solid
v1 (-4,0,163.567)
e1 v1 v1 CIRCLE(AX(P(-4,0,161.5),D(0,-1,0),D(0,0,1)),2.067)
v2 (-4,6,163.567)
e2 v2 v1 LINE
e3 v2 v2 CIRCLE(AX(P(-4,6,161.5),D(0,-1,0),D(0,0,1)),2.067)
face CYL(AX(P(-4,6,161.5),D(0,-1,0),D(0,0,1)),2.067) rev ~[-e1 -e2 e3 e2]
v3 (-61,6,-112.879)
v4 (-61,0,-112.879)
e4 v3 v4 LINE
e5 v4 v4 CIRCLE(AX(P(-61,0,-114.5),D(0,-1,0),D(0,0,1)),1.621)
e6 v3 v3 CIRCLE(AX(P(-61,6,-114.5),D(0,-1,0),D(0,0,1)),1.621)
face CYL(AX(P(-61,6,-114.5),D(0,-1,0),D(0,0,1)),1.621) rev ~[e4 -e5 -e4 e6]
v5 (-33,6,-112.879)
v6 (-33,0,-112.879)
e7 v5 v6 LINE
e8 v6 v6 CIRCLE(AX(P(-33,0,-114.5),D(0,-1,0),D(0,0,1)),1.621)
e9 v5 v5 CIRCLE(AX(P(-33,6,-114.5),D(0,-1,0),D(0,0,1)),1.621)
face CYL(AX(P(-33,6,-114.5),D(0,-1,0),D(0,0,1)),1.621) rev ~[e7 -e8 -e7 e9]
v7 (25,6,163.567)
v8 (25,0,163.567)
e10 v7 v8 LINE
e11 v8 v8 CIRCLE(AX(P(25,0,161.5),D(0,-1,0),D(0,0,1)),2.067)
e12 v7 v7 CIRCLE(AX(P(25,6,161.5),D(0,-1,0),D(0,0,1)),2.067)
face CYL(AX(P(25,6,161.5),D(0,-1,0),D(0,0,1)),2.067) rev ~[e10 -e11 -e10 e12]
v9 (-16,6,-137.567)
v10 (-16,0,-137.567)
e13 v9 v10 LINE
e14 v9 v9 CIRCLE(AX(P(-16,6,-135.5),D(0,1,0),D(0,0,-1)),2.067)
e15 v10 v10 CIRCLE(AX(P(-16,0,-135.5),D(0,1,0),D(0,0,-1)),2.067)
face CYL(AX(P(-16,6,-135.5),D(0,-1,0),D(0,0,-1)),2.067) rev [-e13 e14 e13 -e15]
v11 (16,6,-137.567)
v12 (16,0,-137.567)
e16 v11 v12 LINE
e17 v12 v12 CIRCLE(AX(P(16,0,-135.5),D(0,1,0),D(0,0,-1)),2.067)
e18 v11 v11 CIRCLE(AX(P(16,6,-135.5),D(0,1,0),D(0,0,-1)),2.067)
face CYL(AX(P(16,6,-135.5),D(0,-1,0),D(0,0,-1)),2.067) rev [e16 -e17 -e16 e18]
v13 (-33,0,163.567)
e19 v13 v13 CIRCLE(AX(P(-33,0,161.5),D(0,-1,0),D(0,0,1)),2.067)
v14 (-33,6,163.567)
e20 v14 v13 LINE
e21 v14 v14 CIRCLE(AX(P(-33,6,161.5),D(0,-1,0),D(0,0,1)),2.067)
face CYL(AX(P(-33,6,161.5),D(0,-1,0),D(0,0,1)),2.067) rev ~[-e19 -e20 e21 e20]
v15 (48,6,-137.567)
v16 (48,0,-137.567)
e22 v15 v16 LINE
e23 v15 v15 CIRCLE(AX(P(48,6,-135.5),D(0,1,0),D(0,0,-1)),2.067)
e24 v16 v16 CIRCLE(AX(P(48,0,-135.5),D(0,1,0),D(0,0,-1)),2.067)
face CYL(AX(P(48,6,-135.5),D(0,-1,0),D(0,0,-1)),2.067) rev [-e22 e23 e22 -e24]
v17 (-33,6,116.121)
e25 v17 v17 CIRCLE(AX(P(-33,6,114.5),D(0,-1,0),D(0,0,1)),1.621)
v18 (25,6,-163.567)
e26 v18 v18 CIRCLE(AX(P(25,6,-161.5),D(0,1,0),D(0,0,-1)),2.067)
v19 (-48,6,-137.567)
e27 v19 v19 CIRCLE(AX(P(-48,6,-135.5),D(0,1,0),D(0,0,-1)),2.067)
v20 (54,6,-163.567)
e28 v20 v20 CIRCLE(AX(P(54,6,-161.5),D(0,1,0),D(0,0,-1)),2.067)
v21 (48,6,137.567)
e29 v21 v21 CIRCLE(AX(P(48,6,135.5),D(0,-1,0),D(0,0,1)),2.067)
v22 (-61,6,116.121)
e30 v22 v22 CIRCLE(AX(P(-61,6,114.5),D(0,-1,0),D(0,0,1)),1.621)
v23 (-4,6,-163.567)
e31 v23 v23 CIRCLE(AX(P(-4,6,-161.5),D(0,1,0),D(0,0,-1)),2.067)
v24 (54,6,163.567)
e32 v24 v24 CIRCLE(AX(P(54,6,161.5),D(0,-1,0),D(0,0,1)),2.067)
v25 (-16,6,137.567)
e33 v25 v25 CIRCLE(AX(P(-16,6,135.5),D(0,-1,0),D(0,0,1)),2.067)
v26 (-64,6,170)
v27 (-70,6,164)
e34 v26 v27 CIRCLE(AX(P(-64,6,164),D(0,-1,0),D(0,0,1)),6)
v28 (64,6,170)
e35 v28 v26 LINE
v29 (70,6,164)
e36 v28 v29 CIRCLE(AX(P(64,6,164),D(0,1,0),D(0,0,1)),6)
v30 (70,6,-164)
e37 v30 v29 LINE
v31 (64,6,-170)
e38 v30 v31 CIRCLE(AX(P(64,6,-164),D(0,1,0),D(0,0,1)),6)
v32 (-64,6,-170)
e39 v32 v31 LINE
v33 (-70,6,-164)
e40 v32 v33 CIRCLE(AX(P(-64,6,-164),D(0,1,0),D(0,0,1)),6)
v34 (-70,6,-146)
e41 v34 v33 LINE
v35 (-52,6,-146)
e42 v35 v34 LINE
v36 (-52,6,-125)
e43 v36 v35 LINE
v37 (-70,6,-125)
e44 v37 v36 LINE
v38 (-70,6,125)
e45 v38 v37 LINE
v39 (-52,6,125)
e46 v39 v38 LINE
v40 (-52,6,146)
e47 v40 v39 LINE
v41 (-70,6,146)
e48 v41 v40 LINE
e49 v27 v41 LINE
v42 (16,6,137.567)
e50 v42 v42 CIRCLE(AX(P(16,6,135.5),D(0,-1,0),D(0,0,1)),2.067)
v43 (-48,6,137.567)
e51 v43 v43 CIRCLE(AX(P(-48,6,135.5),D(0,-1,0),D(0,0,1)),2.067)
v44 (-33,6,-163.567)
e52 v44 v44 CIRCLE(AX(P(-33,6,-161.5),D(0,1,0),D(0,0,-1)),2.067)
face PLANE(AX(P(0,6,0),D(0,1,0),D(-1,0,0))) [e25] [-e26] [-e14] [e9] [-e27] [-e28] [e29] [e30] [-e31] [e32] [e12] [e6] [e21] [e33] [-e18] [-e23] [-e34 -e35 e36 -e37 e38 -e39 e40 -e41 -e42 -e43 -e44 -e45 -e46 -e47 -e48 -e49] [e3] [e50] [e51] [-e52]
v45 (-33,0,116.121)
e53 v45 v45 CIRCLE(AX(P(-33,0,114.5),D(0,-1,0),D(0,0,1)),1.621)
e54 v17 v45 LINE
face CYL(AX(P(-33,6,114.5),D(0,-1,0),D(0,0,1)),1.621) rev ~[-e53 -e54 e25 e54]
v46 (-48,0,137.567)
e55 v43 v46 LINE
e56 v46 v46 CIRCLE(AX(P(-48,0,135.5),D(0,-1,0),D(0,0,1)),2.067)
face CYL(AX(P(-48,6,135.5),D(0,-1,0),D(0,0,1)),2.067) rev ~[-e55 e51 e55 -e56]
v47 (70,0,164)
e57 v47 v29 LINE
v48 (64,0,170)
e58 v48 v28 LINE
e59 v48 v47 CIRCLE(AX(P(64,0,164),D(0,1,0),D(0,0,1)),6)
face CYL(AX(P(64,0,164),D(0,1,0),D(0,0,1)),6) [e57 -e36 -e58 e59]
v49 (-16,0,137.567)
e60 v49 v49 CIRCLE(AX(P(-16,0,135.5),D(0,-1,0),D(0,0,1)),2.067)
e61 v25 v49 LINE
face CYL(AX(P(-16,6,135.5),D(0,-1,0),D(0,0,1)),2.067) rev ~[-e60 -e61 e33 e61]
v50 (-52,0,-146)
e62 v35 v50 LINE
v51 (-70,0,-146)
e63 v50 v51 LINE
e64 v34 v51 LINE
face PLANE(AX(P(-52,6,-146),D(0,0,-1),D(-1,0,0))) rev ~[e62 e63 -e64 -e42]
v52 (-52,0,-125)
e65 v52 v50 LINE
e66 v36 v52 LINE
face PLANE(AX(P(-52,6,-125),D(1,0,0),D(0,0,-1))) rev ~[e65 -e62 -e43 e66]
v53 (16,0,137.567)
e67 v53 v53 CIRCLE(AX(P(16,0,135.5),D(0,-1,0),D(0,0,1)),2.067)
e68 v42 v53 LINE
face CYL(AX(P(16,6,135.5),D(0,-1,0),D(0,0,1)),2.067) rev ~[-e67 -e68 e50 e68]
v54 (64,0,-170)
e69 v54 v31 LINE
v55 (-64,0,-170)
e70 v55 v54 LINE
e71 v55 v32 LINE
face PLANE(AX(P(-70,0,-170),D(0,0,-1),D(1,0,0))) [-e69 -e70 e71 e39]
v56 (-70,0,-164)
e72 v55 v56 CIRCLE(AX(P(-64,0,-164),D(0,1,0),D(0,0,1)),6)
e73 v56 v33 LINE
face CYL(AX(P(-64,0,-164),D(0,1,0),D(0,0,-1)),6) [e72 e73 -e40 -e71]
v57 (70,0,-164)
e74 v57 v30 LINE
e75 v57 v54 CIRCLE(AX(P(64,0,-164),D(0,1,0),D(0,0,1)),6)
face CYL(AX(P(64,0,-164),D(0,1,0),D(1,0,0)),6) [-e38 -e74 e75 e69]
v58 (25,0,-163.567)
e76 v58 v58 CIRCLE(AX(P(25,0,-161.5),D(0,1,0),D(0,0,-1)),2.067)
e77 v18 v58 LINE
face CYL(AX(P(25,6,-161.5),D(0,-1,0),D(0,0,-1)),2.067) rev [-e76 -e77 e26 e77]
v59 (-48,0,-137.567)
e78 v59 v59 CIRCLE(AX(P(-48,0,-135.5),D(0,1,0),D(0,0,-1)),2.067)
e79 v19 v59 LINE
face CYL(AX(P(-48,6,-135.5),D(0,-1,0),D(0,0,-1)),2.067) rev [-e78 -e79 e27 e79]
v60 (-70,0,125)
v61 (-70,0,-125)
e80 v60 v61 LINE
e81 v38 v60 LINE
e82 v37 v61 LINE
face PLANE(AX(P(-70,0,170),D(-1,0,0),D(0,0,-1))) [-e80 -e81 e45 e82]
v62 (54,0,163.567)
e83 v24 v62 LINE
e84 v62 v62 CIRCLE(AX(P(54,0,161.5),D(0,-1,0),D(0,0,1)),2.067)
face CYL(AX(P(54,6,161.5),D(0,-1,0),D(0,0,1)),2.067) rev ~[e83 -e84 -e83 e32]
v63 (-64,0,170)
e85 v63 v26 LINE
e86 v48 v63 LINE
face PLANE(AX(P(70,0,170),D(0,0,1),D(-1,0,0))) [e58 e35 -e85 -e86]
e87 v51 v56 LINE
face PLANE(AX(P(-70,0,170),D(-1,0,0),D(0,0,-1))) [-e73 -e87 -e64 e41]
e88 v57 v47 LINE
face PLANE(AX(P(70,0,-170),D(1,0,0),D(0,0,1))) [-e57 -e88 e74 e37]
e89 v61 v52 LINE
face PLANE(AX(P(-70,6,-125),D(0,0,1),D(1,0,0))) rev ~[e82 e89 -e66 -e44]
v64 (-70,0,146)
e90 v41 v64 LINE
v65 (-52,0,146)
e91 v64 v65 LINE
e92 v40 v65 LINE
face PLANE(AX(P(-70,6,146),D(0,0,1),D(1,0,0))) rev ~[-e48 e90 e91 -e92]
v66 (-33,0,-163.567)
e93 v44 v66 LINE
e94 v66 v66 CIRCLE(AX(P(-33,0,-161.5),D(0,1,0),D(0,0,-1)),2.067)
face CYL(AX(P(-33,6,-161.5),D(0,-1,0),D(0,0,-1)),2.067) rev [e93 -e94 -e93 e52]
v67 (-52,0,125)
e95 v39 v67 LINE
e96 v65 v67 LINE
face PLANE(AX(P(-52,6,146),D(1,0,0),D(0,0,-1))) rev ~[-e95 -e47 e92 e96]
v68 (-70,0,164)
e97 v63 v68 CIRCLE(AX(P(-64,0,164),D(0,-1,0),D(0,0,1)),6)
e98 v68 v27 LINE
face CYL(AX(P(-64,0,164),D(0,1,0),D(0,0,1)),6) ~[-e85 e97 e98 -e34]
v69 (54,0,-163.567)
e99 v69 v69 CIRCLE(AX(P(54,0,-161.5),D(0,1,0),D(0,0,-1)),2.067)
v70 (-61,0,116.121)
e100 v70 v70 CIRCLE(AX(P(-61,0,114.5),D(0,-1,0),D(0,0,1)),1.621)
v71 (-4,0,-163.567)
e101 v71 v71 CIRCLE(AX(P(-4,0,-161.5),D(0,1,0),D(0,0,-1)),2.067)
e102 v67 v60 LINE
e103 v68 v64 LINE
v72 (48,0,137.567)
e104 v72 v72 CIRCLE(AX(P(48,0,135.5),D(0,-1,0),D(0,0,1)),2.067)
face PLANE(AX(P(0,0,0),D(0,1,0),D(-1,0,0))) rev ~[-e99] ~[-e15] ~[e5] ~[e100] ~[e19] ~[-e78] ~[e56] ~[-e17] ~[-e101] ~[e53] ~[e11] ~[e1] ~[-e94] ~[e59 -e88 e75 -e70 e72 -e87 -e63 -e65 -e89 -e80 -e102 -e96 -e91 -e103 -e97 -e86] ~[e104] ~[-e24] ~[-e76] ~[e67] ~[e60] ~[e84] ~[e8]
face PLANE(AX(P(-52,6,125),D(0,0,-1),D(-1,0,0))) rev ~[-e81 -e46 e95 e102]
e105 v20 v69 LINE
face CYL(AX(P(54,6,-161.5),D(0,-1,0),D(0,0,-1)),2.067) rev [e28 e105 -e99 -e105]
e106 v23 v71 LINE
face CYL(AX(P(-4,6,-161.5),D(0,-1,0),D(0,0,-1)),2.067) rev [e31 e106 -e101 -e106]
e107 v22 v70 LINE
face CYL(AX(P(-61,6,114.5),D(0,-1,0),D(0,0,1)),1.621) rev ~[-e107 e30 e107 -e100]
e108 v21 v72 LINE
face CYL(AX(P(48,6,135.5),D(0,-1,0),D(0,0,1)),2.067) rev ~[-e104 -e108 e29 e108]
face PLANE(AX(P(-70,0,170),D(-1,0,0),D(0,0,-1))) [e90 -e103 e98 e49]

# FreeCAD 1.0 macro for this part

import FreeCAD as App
import Part
import Sketcher

V = App.Vector
Q = App.Units.Quantity


def edges_at(feature, points):
    """Names of the edges that pass closest to the given points."""
    edges = feature.Shape.Edges
    near = lambda p: min(range(len(edges)), key=lambda i: edges[i].distToShape(Part.Vertex(*p))[0])
    return sorted({f"Edge{near(p) + 1}" for p in points})


def add_polygon(sketch, points):
    """Adds a closed chain of lines whose ends are joined by coincident constraints."""
    first, n = sketch.GeometryCount, len(points)
    for a, b in zip(points, points[1:] + points[:1]):
        sketch.addGeometry(Part.LineSegment(App.Vector(*a, 0), App.Vector(*b, 0)), False)
    for i in range(n):
        sketch.addConstraint(Sketcher.Constraint("Coincident", first + i, 2, first + (i + 1) % n, 1))

doc = App.newDocument("Part")
params = doc.addObject("Spreadsheet::Sheet", "Params")
for row, (alias, value) in enumerate([
    ("sketch1_width", "140 mm"),
    ("sketch1_height", "340 mm"),
    ("pad1_length", "6 mm"),
    ("sketch2_width", "18 mm"),
    ("sketch2_height", "21 mm"),
    ("pocket1_length", "6 mm"),
    ("hole_diameter", "4.134 mm"),
    ("hole_depth", "6 mm"),
    ("fillet_radius", "6 mm"),
    ("hole2_diameter", "4.134 mm"),
    ("hole2_depth", "6 mm"),
    ("hole3_diameter", "3.242 mm"),
    ("hole3_depth", "6 mm"),
    ("hole4_diameter", "3.242 mm"),
    ("hole4_depth", "6 mm"),
], start=1):
    params.set(f"A{row}", alias)
    params.set(f"B{row}", "=" + value)
    params.setAlias(f"B{row}", alias)

body = doc.addObject("PartDesign::Body", "Body")

# Sketch on XZ plane
sketch1 = body.newObject("Sketcher::SketchObject", "Sketch")
sketch1.AttachmentSupport = (doc.getObject("XZ_Plane"), [""])
sketch1.MapMode = "FlatFace"
add_polygon(sketch1, [(-70, 170), (70, 170), (70, -170), (-70, -170)])  # lines 0-3
sketch1.addConstraint([
    Sketcher.Constraint("Horizontal", 0),
    Sketcher.Constraint("Vertical", 1),
    Sketcher.Constraint("Horizontal", 2),
    Sketcher.Constraint("Vertical", 3),
    Sketcher.Constraint("Symmetric", 0, 2, 2, 2, -1, 1),
    Sketcher.Constraint("DistanceX", 0, 1, 0, 2, Q("140 mm")),
    Sketcher.Constraint("DistanceY", 1, 2, 1, 1, Q("340 mm")),
])
sketch1.setExpression("Constraints[9]", "Params.sketch1_width")
sketch1.setExpression("Constraints[10]", "Params.sketch1_height")
pad1 = body.newObject("PartDesign::Pad", "Pad")
pad1.Profile = sketch1
pad1.setExpression("Length", "Params.pad1_length")
pad1.Reversed = True

# Sketch on XZ plane
sketch2 = body.newObject("Sketcher::SketchObject", "Sketch001")
sketch2.AttachmentSupport = (doc.getObject("XZ_Plane"), [""])
sketch2.MapMode = "FlatFace"
sketch2.AttachmentOffset = App.Placement(V(0, 0, -6), App.Rotation())
add_polygon(sketch2, [(-52, -146), (-70, -146), (-70, -125), (-52, -125)])  # lines 0-3
add_polygon(sketch2, [(-52, 125), (-70, 125), (-70, 146), (-52, 146)])  # lines 4-7
sketch2.addConstraint([
    Sketcher.Constraint("Horizontal", 0),
    Sketcher.Constraint("Vertical", 1),
    Sketcher.Constraint("Horizontal", 2),
    Sketcher.Constraint("Vertical", 3),
    Sketcher.Constraint("Horizontal", 4),
    Sketcher.Constraint("Vertical", 5),
    Sketcher.Constraint("Horizontal", 6),
    Sketcher.Constraint("Vertical", 7),
    Sketcher.Constraint("Symmetric", 1, 2, 4, 2, -1),
    Sketcher.Constraint("Symmetric", 3, 2, 6, 2, -1),
    Sketcher.Constraint("DistanceX", 0, 2, 0, 1, Q("18 mm")),
    Sketcher.Constraint("DistanceY", 1, 1, 1, 2, Q("21 mm")),
    Sketcher.Constraint("DistanceX", 0, 2, -1, 1, Q("70 mm")),
    Sketcher.Constraint("DistanceY", 0, 2, -1, 1, Q("146 mm")),
])
sketch2.setExpression("Constraints[18]", "Params.sketch2_width")
sketch2.setExpression("Constraints[19]", "Params.sketch2_height")
pocket1 = body.newObject("PartDesign::Pocket", "Pocket")
pocket1.Profile = sketch2
pocket1.setExpression("Length", "Params.pocket1_length")
pocket1.Reversed = True

# Sketch on XZ plane
sketch3 = body.newObject("Sketcher::SketchObject", "Sketch002")
sketch3.AttachmentSupport = (doc.getObject("XZ_Plane"), [""])
sketch3.MapMode = "FlatFace"
sketch3.AttachmentOffset = App.Placement(V(0, 0, -6), App.Rotation())
sketch3.addGeometry([
    Part.Circle(V(-48, 135.5, 0), V(0, 0, 1), 2.1),
    Part.Circle(V(-16, 135.5, 0), V(0, 0, 1), 2.1),
    Part.Circle(V(16, 135.5, 0), V(0, 0, 1), 2.1),
    Part.Circle(V(48, 135.5, 0), V(0, 0, 1), 2.1),
], False)
sketch3.addConstraint([
    Sketcher.Constraint("Equal", 0, 1),
    Sketcher.Constraint("Equal", 1, 2),
    Sketcher.Constraint("Equal", 2, 3),
    Sketcher.Constraint("Symmetric", 1, 3, 2, 3, -2),
    Sketcher.Constraint("Symmetric", 0, 3, 3, 3, -2),
    Sketcher.Constraint("Horizontal", 0, 3, 1, 3),
    Sketcher.Constraint("Diameter", 0, Q("4.134 mm")),
    Sketcher.Constraint("DistanceX", 0, 3, -1, 1, Q("48 mm")),
    Sketcher.Constraint("DistanceX", 1, 3, -1, 1, Q("16 mm")),
    Sketcher.Constraint("DistanceY", -1, 1, 0, 3, Q("135.5 mm")),
])
doc.recompute()
hole = body.newObject("PartDesign::Hole", "Hole")
hole.Profile = sketch3
hole.ThreadType = "None"
hole.setExpression("Diameter", "Params.hole_diameter")
hole.DepthType = "Dimension"
hole.setExpression("Depth", "Params.hole_depth")
hole.DrillPoint = "Flat"
hole.Reversed = True
doc.recompute()

fillet = body.newObject("PartDesign::Fillet", "Fillet")
fillet.Base = (hole, edges_at(hole, [
    (-70, 3, 170),
    (70, 3, 170),
    (70, 3, -170),
    (-70, 3, -170),
]))
fillet.setExpression("Radius", "Params.fillet_radius")

# Sketch on XZ plane
sketch4 = body.newObject("Sketcher::SketchObject", "Sketch003")
sketch4.AttachmentSupport = (doc.getObject("XZ_Plane"), [""])
sketch4.MapMode = "FlatFace"
sketch4.AttachmentOffset = App.Placement(V(0, 0, -6), App.Rotation())
sketch4.addGeometry([
    Part.Circle(V(54, 161.5, 0), V(0, 0, 1), 2.1),
    Part.Circle(V(25, 161.5, 0), V(0, 0, 1), 2.1),
    Part.Circle(V(-4, 161.5, 0), V(0, 0, 1), 2.1),
    Part.Circle(V(-33, 161.5, 0), V(0, 0, 1), 2.1),
], False)
sketch4.addConstraint([
    Sketcher.Constraint("Equal", 0, 1),
    Sketcher.Constraint("Equal", 1, 2),
    Sketcher.Constraint("Equal", 2, 3),
    Sketcher.Constraint("Horizontal", 0, 3, 1, 3),
    Sketcher.Constraint("Horizontal", 1, 3, 2, 3),
    Sketcher.Constraint("Horizontal", 2, 3, 3, 3),
    Sketcher.Constraint("Diameter", 0, Q("4.134 mm")),
    Sketcher.Constraint("DistanceX", -1, 1, 0, 3, Q("54 mm")),
    Sketcher.Constraint("DistanceX", -1, 1, 1, 3, Q("25 mm")),
    Sketcher.Constraint("DistanceX", 2, 3, -1, 1, Q("4 mm")),
    Sketcher.Constraint("DistanceX", 3, 3, -1, 1, Q("33 mm")),
    Sketcher.Constraint("DistanceY", -1, 1, 0, 3, Q("161.5 mm")),
])
doc.recompute()
hole2 = body.newObject("PartDesign::Hole", "Hole001")
hole2.Profile = sketch4
hole2.ThreadType = "None"
hole2.setExpression("Diameter", "Params.hole2_diameter")
hole2.DepthType = "Dimension"
hole2.setExpression("Depth", "Params.hole2_depth")
hole2.DrillPoint = "Flat"
hole2.Reversed = True
doc.recompute()

mirrored = body.newObject("PartDesign::Mirrored", "Mirrored")
mirrored.Originals = [hole2, hole]
mirrored.MirrorPlane = (doc.getObject("XY_Plane"), [""])
body.Tip = mirrored

# Sketch on XZ plane
sketch5 = body.newObject("Sketcher::SketchObject", "Sketch004")
sketch5.AttachmentSupport = (doc.getObject("XZ_Plane"), [""])
sketch5.MapMode = "FlatFace"
sketch5.AttachmentOffset = App.Placement(V(0, 0, -6), App.Rotation())
sketch5.addGeometry([
    Part.Circle(V(-61, 114.5, 0), V(0, 0, 1), 1.6),
    Part.Circle(V(-61, -114.5, 0), V(0, 0, 1), 1.6),
], False)
sketch5.addConstraint([
    Sketcher.Constraint("Equal", 0, 1),
    Sketcher.Constraint("Symmetric", 0, 3, 1, 3, -1),
    Sketcher.Constraint("Diameter", 0, Q("3.242 mm")),
    Sketcher.Constraint("DistanceX", 0, 3, -1, 1, Q("61 mm")),
    Sketcher.Constraint("DistanceY", 1, 3, 0, 3, Q("229 mm")),
])
doc.recompute()
hole3 = body.newObject("PartDesign::Hole", "Hole002")
hole3.Profile = sketch5
hole3.ThreadType = "None"
hole3.setExpression("Diameter", "Params.hole3_diameter")
hole3.DepthType = "Dimension"
hole3.setExpression("Depth", "Params.hole3_depth")
hole3.DrillPoint = "Flat"
hole3.Reversed = True

# Sketch on XZ plane
sketch6 = body.newObject("Sketcher::SketchObject", "Sketch005")
sketch6.AttachmentSupport = (doc.getObject("XZ_Plane"), [""])
sketch6.MapMode = "FlatFace"
sketch6.AttachmentOffset = App.Placement(V(0, 0, -6), App.Rotation())
sketch6.addGeometry([
    Part.Circle(V(-33, 114.5, 0), V(0, 0, 1), 1.6),
    Part.Circle(V(-33, -114.5, 0), V(0, 0, 1), 1.6),
], False)
sketch6.addConstraint([
    Sketcher.Constraint("Equal", 0, 1),
    Sketcher.Constraint("Symmetric", 0, 3, 1, 3, -1),
    Sketcher.Constraint("Diameter", 0, Q("3.242 mm")),
    Sketcher.Constraint("DistanceX", 0, 3, -1, 1, Q("33 mm")),
    Sketcher.Constraint("DistanceY", 1, 3, 0, 3, Q("229 mm")),
])
doc.recompute()
hole4 = body.newObject("PartDesign::Hole", "Hole003")
hole4.Profile = sketch6
hole4.ThreadType = "None"
hole4.setExpression("Diameter", "Params.hole4_diameter")
hole4.DepthType = "Dimension"
hole4.setExpression("Depth", "Params.hole4_depth")
hole4.DrillPoint = "Flat"
hole4.Reversed = True

doc.recompute()
